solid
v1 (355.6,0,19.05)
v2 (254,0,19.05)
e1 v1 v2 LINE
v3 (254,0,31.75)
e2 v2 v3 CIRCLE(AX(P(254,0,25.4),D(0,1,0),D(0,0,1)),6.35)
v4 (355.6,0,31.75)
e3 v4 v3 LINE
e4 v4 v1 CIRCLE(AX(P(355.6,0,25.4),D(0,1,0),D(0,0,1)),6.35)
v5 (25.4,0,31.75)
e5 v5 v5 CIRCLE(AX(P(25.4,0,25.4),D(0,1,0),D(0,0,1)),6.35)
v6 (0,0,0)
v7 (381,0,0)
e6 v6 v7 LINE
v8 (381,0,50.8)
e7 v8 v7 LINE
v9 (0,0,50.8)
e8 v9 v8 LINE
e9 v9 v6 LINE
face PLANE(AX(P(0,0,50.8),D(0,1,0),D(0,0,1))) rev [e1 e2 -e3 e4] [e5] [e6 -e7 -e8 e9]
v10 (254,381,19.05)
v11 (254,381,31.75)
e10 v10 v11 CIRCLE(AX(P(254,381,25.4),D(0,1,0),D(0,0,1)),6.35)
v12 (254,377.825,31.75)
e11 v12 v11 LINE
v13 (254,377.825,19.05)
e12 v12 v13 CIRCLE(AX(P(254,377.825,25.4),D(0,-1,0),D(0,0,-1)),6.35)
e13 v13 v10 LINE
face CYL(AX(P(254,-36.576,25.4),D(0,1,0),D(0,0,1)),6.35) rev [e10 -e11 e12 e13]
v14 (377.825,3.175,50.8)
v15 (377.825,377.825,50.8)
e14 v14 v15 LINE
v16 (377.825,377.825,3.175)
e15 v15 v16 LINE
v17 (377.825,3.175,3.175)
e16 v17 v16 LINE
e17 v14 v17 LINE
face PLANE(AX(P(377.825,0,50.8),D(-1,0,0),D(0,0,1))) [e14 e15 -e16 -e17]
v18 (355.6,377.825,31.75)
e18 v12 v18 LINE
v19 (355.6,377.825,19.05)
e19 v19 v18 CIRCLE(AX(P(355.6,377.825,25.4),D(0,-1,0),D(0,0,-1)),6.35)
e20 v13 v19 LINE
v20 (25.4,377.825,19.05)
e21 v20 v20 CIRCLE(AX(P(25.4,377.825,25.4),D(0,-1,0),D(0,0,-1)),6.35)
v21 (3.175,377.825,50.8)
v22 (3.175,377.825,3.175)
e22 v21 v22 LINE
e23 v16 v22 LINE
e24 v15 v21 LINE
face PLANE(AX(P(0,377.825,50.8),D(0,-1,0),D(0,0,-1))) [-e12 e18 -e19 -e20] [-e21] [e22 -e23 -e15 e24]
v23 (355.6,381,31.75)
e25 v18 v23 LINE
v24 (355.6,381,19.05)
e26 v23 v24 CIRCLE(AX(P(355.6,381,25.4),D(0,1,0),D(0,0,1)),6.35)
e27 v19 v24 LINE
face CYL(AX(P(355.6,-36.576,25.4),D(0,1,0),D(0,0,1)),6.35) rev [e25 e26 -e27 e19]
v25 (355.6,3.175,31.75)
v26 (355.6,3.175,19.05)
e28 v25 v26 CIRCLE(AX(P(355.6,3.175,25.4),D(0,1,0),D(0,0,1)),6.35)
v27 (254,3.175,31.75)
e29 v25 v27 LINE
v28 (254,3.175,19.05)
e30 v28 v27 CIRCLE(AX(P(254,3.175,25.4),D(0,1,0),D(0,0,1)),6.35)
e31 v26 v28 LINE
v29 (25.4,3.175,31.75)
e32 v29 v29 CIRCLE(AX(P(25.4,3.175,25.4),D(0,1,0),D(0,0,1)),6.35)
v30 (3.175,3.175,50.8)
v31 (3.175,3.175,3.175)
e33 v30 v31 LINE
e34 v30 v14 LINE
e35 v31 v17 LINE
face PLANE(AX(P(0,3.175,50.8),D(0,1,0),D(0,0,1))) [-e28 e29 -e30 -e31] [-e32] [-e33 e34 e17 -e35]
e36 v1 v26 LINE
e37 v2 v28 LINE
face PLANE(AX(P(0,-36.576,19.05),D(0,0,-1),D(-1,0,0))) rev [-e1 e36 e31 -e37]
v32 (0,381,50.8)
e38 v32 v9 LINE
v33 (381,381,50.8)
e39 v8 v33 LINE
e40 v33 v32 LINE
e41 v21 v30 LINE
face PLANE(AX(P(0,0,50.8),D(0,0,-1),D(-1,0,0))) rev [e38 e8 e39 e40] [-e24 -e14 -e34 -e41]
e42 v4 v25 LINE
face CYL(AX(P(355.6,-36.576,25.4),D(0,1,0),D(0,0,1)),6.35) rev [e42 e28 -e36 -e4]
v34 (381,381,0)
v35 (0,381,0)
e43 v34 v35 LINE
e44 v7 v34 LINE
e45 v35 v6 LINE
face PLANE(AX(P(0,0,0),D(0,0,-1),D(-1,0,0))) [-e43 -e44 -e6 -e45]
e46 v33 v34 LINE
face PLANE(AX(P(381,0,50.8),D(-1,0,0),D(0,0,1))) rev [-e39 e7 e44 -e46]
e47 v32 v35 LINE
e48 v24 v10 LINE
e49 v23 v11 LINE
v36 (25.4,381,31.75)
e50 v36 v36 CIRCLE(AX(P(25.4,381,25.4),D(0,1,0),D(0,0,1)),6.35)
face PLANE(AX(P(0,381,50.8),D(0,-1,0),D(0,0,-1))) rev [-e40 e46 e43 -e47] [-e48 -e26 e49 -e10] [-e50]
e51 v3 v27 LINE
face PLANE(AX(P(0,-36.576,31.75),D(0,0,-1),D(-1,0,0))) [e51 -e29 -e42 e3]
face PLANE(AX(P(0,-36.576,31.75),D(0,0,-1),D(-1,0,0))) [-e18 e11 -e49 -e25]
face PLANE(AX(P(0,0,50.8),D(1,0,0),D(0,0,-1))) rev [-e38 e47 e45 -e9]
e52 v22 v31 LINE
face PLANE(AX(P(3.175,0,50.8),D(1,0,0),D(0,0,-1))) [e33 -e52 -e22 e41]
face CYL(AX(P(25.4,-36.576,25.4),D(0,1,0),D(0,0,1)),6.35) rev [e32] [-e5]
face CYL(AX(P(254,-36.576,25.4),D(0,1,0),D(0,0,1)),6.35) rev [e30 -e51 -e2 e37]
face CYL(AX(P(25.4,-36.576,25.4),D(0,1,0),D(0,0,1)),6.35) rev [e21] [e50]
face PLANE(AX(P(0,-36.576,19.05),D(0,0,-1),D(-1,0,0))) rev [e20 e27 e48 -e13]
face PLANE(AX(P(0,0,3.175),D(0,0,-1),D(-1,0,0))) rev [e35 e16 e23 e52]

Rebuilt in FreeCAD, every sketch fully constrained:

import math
import FreeCAD as App
import Part
import Sketcher
from FreeCAD import Vector
Q = App.Units.Quantity


def faces_at(feature, points):
    """Names of the faces that lie closest to the given points."""
    faces = feature.Shape.Faces
    near = lambda p: min(range(len(faces)), key=lambda i: faces[i].distToShape(Part.Vertex(*p))[0])
    return sorted({f"Face{near(p) + 1}" for p in points})

doc = App.newDocument("Part")
params = doc.addObject("Spreadsheet::Sheet", "Params")
for row, (alias, value) in enumerate([
    ("sketch1_width", "15 in"),
    ("pad1_length", "2 in"),
    ("thickness_wall", "0.125 in"),
    ("sketch2_diameter", "0.5 in"),
    ("pocket1_length", "16.44 in"),
    ("sketch3_width", "4 in"),
    ("sketch3_radius", "0.25 in"),
    ("pocket2_length", "16.44 in"),
], start=1):
    params.set(f"A{row}", alias)
    params.set(f"B{row}", "=" + value)
    params.setAlias(f"B{row}", alias)

body = doc.addObject("PartDesign::Body", "Body")

sketch1 = body.newObject("Sketcher::SketchObject", "Sketch")
sketch1.AttachmentSupport = (doc.getObject("XY_Plane"), [""])
sketch1.MapMode = "FlatFace"
sketch1.addGeometry([
    Part.LineSegment(Vector(0, 381, 0), Vector(0, 0, 0)),
    Part.LineSegment(Vector(0, 0, 0), Vector(381, 0, 0)),
    Part.LineSegment(Vector(381, 0, 0), Vector(381, 381, 0)),
    Part.LineSegment(Vector(381, 381, 0), Vector(0, 381, 0)),
], False)
sketch1.addConstraint([
    Sketcher.Constraint("Coincident", 0, 2, 1, 1),
    Sketcher.Constraint("Coincident", 1, 2, 2, 1),
    Sketcher.Constraint("Coincident", 2, 2, 3, 1),
    Sketcher.Constraint("Coincident", 3, 2, 0, 1),
    Sketcher.Constraint("Vertical", 0),
    Sketcher.Constraint("Horizontal", 1),
    Sketcher.Constraint("Vertical", 2),
    Sketcher.Constraint("Horizontal", 3),
    Sketcher.Constraint("Coincident", 0, 2, -1, 1),
    Sketcher.Constraint("Equal", 3, 0),
    Sketcher.Constraint("DistanceX", 1, 1, 1, 2, Q("15 in")),
])
sketch1.setExpression("Constraints[10]", "Params.sketch1_width")
pad1 = body.newObject("PartDesign::Pad", "Pad")
pad1.Profile = sketch1
pad1.setExpression("Length", "Params.pad1_length")
doc.recompute()

thickness = body.newObject("PartDesign::Thickness", "Thickness")
thickness.Base = (pad1, faces_at(pad1, [(190.5, 190.5, 50.8)]))
thickness.setExpression("Value", "Params.thickness_wall")
thickness.Reversed = True
thickness.Join = "Intersection"

sketch2 = body.newObject("Sketcher::SketchObject", "Sketch001")
sketch2.AttachmentSupport = (doc.getObject("XZ_Plane"), [""])
sketch2.MapMode = "FlatFace"
sketch2.AttachmentOffset = App.Placement(Vector(0, 0, -15 * 25.4), App.Rotation())
sketch2.addGeometry(Part.Circle(Vector(25, 25, 0), Vector(0, 0, 1), 6), False)
sketch2.addConstraint([
    Sketcher.Constraint("Diameter", 0, Q("0.5 in")),
    Sketcher.Constraint("DistanceX", -1, 1, 0, 3, Q("1 in")),
    Sketcher.Constraint("DistanceY", -1, 1, 0, 3, Q("1 in")),
])
sketch2.setExpression("Constraints[0]", "Params.sketch2_diameter")
pocket1 = body.newObject("PartDesign::Pocket", "Pocket")
pocket1.Profile = sketch2
pocket1.setExpression("Length", "Params.pocket1_length")
pocket1.Reversed = True

sketch3 = body.newObject("Sketcher::SketchObject", "Sketch002")
sketch3.AttachmentSupport = (doc.getObject("XZ_Plane"), [""])
sketch3.MapMode = "FlatFace"
sketch3.AttachmentOffset = App.Placement(Vector(0, 0, -15 * 25.4), App.Rotation())
sketch3.addGeometry([
    Part.ArcOfCircle(Part.Circle(Vector(254, 25, 0), Vector(0, 0, 1), 6), math.radians(90), math.radians(270)),
    Part.LineSegment(Vector(254, 32, 0), Vector(356, 32, 0)),
    Part.ArcOfCircle(Part.Circle(Vector(356, 25, 0), Vector(0, 0, 1), 6), math.radians(-90), math.radians(90)),
    Part.LineSegment(Vector(356, 19, 0), Vector(254, 19, 0)),
], False)
sketch3.addConstraint([
    Sketcher.Constraint("Tangent", 0, 1, 1, 1),
    Sketcher.Constraint("Tangent", 1, 2, 2, 2),
    Sketcher.Constraint("Tangent", 2, 1, 3, 1),
    Sketcher.Constraint("Tangent", 3, 2, 0, 2),
    Sketcher.Constraint("Horizontal", 1),
    Sketcher.Constraint("Horizontal", 3),
    Sketcher.Constraint("DistanceX", 1, 1, 1, 2, Q("4 in")),
    Sketcher.Constraint("Radius", 0, Q("0.25 in")),
    Sketcher.Constraint("DistanceX", -1, 1, 0, 3, Q("10 in")),
    Sketcher.Constraint("DistanceY", -1, 1, 0, 3, Q("1 in")),
])
sketch3.setExpression("Constraints[6]", "Params.sketch3_width")
sketch3.setExpression("Constraints[7]", "Params.sketch3_radius")
pocket2 = body.newObject("PartDesign::Pocket", "Pocket001")
pocket2.Profile = sketch3
pocket2.setExpression("Length", "Params.pocket2_length")
pocket2.Reversed = True

doc.recompute()
